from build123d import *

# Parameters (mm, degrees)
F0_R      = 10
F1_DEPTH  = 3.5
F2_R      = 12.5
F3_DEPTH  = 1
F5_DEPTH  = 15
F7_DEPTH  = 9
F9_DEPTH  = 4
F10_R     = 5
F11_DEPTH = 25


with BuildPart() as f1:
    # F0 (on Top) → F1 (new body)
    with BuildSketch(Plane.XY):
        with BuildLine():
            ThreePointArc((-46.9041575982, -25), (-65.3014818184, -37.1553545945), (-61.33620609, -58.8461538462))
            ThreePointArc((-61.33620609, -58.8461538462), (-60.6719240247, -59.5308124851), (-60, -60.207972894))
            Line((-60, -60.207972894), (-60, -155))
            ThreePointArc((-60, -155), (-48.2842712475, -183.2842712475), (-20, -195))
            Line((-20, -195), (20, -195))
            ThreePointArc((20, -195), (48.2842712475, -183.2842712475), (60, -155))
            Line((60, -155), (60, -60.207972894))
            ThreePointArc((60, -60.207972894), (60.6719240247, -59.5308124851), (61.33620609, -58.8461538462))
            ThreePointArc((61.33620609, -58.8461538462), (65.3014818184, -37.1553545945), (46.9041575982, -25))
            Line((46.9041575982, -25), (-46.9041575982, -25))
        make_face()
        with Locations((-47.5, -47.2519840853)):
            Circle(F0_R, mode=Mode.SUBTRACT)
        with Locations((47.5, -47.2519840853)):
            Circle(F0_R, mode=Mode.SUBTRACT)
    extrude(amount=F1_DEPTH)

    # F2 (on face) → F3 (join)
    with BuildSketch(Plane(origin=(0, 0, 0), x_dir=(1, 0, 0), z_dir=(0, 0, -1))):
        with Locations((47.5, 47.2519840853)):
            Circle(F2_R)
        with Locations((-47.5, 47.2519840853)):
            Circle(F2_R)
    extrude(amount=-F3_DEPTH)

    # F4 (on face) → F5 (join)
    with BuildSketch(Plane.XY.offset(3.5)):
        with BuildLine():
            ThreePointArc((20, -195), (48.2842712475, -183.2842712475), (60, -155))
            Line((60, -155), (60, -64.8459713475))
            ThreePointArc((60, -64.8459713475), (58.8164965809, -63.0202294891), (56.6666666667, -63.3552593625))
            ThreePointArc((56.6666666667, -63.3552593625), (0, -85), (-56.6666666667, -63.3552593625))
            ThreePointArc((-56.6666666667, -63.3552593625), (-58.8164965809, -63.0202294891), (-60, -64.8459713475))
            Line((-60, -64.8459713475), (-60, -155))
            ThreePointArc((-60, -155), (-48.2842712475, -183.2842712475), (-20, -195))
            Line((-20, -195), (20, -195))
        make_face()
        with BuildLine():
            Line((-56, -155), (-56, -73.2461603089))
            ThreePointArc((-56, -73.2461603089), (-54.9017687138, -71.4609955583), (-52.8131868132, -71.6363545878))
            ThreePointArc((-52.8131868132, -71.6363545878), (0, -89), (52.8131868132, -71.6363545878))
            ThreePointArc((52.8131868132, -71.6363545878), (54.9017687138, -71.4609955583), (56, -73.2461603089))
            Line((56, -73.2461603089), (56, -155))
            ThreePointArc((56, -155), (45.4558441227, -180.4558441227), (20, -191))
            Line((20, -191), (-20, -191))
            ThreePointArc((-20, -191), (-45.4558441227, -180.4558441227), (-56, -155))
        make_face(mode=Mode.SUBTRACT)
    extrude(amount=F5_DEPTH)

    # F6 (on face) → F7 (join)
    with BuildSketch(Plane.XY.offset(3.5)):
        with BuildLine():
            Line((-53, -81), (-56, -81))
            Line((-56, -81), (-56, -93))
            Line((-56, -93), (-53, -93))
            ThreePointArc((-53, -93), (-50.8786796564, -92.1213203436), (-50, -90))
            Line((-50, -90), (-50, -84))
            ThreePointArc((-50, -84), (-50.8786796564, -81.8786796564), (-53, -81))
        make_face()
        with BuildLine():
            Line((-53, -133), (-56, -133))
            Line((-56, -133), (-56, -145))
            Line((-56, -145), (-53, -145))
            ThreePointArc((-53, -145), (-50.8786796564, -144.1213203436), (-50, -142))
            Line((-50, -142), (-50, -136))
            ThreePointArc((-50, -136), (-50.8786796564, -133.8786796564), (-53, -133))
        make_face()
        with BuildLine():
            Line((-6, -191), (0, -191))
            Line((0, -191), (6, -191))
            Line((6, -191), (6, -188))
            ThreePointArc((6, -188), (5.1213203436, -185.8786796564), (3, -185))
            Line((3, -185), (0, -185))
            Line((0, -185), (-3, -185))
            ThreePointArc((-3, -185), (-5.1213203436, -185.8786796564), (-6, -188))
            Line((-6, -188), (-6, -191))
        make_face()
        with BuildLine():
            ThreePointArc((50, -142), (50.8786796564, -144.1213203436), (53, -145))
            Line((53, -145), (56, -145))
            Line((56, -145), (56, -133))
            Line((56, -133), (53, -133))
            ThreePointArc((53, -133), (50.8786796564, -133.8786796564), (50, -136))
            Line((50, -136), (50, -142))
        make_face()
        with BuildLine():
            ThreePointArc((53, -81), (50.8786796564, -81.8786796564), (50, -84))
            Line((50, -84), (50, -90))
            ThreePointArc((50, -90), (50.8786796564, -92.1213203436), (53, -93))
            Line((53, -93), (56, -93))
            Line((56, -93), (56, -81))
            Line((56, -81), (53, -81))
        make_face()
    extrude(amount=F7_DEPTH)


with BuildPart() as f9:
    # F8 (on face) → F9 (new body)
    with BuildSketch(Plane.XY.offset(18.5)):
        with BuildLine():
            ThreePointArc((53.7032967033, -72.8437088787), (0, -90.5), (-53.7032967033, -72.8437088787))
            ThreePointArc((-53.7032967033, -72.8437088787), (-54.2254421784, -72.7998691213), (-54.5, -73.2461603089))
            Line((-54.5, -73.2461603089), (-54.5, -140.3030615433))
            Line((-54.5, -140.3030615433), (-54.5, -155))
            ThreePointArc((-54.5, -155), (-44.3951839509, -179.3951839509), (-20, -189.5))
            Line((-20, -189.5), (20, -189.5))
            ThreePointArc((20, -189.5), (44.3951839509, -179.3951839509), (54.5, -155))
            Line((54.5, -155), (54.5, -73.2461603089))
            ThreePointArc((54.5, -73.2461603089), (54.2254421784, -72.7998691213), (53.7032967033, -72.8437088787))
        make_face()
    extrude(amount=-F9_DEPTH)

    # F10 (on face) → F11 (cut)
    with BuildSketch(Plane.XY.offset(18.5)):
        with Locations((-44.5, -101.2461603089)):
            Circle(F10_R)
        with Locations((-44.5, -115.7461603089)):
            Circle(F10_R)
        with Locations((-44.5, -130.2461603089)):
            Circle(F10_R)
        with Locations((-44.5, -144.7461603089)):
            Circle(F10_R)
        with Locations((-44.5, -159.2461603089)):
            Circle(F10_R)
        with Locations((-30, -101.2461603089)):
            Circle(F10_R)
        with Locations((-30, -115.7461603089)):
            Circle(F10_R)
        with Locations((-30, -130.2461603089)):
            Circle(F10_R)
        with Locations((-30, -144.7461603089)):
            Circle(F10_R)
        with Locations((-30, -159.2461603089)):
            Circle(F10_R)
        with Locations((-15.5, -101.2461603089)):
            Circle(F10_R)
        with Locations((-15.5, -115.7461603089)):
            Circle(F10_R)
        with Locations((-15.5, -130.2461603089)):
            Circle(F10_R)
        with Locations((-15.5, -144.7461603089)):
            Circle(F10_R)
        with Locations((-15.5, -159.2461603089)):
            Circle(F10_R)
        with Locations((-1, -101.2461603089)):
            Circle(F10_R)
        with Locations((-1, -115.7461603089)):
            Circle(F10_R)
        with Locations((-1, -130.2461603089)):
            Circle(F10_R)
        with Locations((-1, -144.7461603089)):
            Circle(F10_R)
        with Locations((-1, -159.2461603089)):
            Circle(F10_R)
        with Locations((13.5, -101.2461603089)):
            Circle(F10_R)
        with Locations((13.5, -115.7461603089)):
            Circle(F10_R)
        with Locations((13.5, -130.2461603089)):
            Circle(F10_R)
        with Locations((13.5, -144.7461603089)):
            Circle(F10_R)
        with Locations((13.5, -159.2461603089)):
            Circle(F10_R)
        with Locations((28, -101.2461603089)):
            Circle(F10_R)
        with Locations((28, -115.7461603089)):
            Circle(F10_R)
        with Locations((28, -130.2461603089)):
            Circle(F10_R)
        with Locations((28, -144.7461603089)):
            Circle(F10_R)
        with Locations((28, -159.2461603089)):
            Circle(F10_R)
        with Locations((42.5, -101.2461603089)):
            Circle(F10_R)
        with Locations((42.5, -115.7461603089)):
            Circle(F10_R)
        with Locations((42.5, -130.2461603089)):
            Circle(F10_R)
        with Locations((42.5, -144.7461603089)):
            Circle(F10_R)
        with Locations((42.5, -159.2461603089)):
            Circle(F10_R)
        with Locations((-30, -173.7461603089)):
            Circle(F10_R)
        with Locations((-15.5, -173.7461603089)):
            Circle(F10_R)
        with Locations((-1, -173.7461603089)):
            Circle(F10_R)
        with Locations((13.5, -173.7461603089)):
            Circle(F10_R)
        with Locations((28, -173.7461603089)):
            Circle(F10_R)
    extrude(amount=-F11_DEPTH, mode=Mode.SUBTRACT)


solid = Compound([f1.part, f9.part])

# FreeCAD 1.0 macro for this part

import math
import FreeCAD as App
import Part
import Sketcher

V = App.Vector
Q = App.Units.Quantity

doc = App.newDocument("Part")
body = doc.addObject("PartDesign::Body", "Body")

sketch1 = doc.addObject("Sketcher::SketchObject", "Sketch")
body.addObject(sketch1)
sketch1.AttachmentSupport = (doc.XY_Plane, [""])
sketch1.MapMode = "FlatFace"
sketch1.addGeometry([
    Part.ArcOfCircle(Part.Circle(V(-46.9, -45, 0), V(0, 0, 1), 20), math.radians(90), math.radians(224)),
    Part.ArcOfCircle(Part.Circle(V(0, 0, 0), V(0, 0, 1), 85), math.radians(-136.19), math.radians(-134.9)),
    Part.LineSegment(V(-60, -60.2, 0), V(-60, -155, 0)),
    Part.ArcOfCircle(Part.Circle(V(-20, -155, 0), V(0, 0, 1), 40), math.radians(180), math.radians(270)),
    Part.LineSegment(V(-20, -195, 0), V(20, -195, 0)),
    Part.ArcOfCircle(Part.Circle(V(20, -155, 0), V(0, 0, 1), 40), math.radians(-90), math.radians(0)),
    Part.LineSegment(V(60, -155, 0), V(60, -60.2, 0)),
    Part.ArcOfCircle(Part.Circle(V(0, 0, 0), V(0, 0, 1), 85), math.radians(-45.1), math.radians(-43.81)),
    Part.ArcOfCircle(Part.Circle(V(46.9, -45, 0), V(0, 0, 1), 20), math.radians(-44), math.radians(90)),
    Part.LineSegment(V(46.9, -25, 0), V(-46.9, -25, 0)),
    Part.Circle(V(-47.5, -47.3, 0), V(0, 0, 1), 10),
    Part.Circle(V(47.5, -47.3, 0), V(0, 0, 1), 10),
], False)
sketch1.addConstraint([
    Sketcher.Constraint("Tangent", 0, 2, 1, 1),
    Sketcher.Constraint("Coincident", 1, 2, 2, 1),
    Sketcher.Constraint("Tangent", 2, 2, 3, 1),
    Sketcher.Constraint("Tangent", 3, 2, 4, 1),
    Sketcher.Constraint("Tangent", 4, 2, 5, 1),
    Sketcher.Constraint("Tangent", 5, 2, 6, 1),
    Sketcher.Constraint("Coincident", 6, 2, 7, 1),
    Sketcher.Constraint("Tangent", 7, 2, 8, 1),
    Sketcher.Constraint("Tangent", 8, 2, 9, 1),
    Sketcher.Constraint("Tangent", 9, 2, 0, 1),
    Sketcher.Constraint("Vertical", 2),
    Sketcher.Constraint("Horizontal", 4),
    Sketcher.Constraint("Vertical", 6),
    Sketcher.Constraint("Horizontal", 9),
    Sketcher.Constraint("Coincident", 1, 3, -1, 1),
    Sketcher.Constraint("Coincident", 7, 3, -1, 1),
    Sketcher.Constraint("Equal", 3, 5),
    Sketcher.Constraint("Equal", 1, 7),
    Sketcher.Constraint("Equal", 0, 8),
    Sketcher.Constraint("Equal", 10, 11),
    Sketcher.Constraint("Symmetric", 10, 3, 11, 3, -2),
    Sketcher.Constraint("Horizontal", 1, 2, 6, 2),
    Sketcher.Constraint("Diameter", 10, Q("20 mm")),
    Sketcher.Constraint("Radius", 0, Q("20 mm")),
    Sketcher.Constraint("Radius", 1, Q("85.000001 mm")),
    Sketcher.Constraint("Radius", 3, Q("40 mm")),
    Sketcher.Constraint("DistanceX", 4, 1, 4, 2, Q("40 mm")),
    Sketcher.Constraint("DistanceY", 0, 3, -1, 1, Q("45 mm")),
    Sketcher.Constraint("DistanceY", 3, 3, -1, 1, Q("155 mm")),
    Sketcher.Constraint("DistanceX", 10, 3, 11, 3, Q("95 mm")),
    Sketcher.Constraint("DistanceY", 0, 2, 10, 3, Q("11.59417 mm")),
])
pad1 = doc.addObject("PartDesign::Pad", "Pad")
body.addObject(pad1)
pad1.Profile = sketch1
pad1.Length = 3.5

sketch2 = doc.addObject("Sketcher::SketchObject", "Sketch001")
body.addObject(sketch2)
sketch2.AttachmentSupport = (doc.XY_Plane, [""])
sketch2.MapMode = "FlatFace"
sketch2.addGeometry([
    Part.Circle(V(48, -47, 0), V(0, 0, 1), 12),
    Part.Circle(V(-48, -47, 0), V(0, 0, 1), 12),
], False)
sketch2.addConstraint([
    Sketcher.Constraint("Equal", 0, 1),
    Sketcher.Constraint("Symmetric", 0, 3, 1, 3, -2),
    Sketcher.Constraint("Diameter", 0, Q("25 mm")),
    Sketcher.Constraint("DistanceX", 1, 3, 0, 3, Q("95 mm")),
    Sketcher.Constraint("DistanceY", 0, 3, -1, 1, Q("47.251984 mm")),
])
pad2 = doc.addObject("PartDesign::Pad", "Pad001")
body.addObject(pad2)
pad2.Profile = sketch2
pad2.Length = 1

sketch3 = doc.addObject("Sketcher::SketchObject", "Sketch002")
body.addObject(sketch3)
sketch3.AttachmentSupport = (doc.XY_Plane, [""])
sketch3.MapMode = "FlatFace"
sketch3.AttachmentOffset = App.Placement(V(0, 0, 3.5), App.Rotation())
sketch3.addGeometry([
    Part.ArcOfCircle(Part.Circle(V(20, -155, 0), V(0, 0, 1), 40), math.radians(-90), math.radians(0)),
    Part.LineSegment(V(60, -155, 0), V(60, -64.8, 0)),
    Part.ArcOfCircle(Part.Circle(V(58, -64.8, 0), V(0, 0, 1), 2), math.radians(0), math.radians(132)),
    Part.ArcOfCircle(Part.Circle(V(0, 0, 0), V(0, 0, 1), 85), math.radians(-132), math.radians(-48)),
    Part.ArcOfCircle(Part.Circle(V(-58, -64.8, 0), V(0, 0, 1), 2), math.radians(48), math.radians(180)),
    Part.LineSegment(V(-60, -64.8, 0), V(-60, -155, 0)),
    Part.ArcOfCircle(Part.Circle(V(-20, -155, 0), V(0, 0, 1), 40), math.radians(180), math.radians(270)),
    Part.LineSegment(V(-20, -195, 0), V(20, -195, 0)),
    Part.ArcOfCircle(Part.Circle(V(-20, -155, 0), V(0, 0, 1), 36), math.radians(180), math.radians(270)),
    Part.LineSegment(V(-56, -155, 0), V(-56, -73.2, 0)),
    Part.ArcOfCircle(Part.Circle(V(-54, -73.2, 0), V(0, 0, 1), 2), math.radians(54), math.radians(180)),
    Part.ArcOfCircle(Part.Circle(V(0, 0, 0), V(0, 0, 1), 89), math.radians(-126), math.radians(-54)),
    Part.ArcOfCircle(Part.Circle(V(54, -73.2, 0), V(0, 0, 1), 2), math.radians(0), math.radians(126)),
    Part.LineSegment(V(56, -73.2, 0), V(56, -155, 0)),
    Part.ArcOfCircle(Part.Circle(V(20, -155, 0), V(0, 0, 1), 36), math.radians(-90), math.radians(0)),
    Part.LineSegment(V(20, -191, 0), V(-20, -191, 0)),
], False)
sketch3.addConstraint([
    Sketcher.Constraint("Tangent", 0, 2, 1, 1),
    Sketcher.Constraint("Tangent", 1, 2, 2, 1),
    Sketcher.Constraint("Tangent", 2, 2, 3, 2),
    Sketcher.Constraint("Tangent", 3, 1, 4, 1),
    Sketcher.Constraint("Tangent", 4, 2, 5, 1),
    Sketcher.Constraint("Tangent", 5, 2, 6, 1),
    Sketcher.Constraint("Tangent", 6, 2, 7, 1),
    Sketcher.Constraint("Tangent", 7, 2, 0, 1),
    Sketcher.Constraint("Tangent", 8, 1, 9, 1),
    Sketcher.Constraint("Tangent", 9, 2, 10, 2),
    Sketcher.Constraint("Tangent", 10, 1, 11, 1),
    Sketcher.Constraint("Tangent", 11, 2, 12, 2),
    Sketcher.Constraint("Tangent", 12, 1, 13, 1),
    Sketcher.Constraint("Tangent", 13, 2, 14, 2),
    Sketcher.Constraint("Tangent", 14, 1, 15, 1),
    Sketcher.Constraint("Tangent", 15, 2, 8, 2),
    Sketcher.Constraint("Vertical", 1),
    Sketcher.Constraint("Vertical", 5),
    Sketcher.Constraint("Horizontal", 7),
    Sketcher.Constraint("Vertical", 9),
    Sketcher.Constraint("Vertical", 13),
    Sketcher.Constraint("Horizontal", 15),
    Sketcher.Constraint("Coincident", 3, 3, -1, 1),
    Sketcher.Constraint("Coincident", 11, 3, -1, 1),
    Sketcher.Constraint("Coincident", 8, 3, 6, 3),
    Sketcher.Constraint("Coincident", 14, 3, 0, 3),
    Sketcher.Constraint("Equal", 2, 4),
    Sketcher.Constraint("Equal", 0, 6),
    Sketcher.Constraint("Equal", 4, 10),
    Sketcher.Constraint("Equal", 10, 12),
    Sketcher.Constraint("Horizontal", 2, 3, 4, 3),
    Sketcher.Constraint("Radius", 0, Q("40 mm")),
    Sketcher.Constraint("Radius", 2, Q("2 mm")),
    Sketcher.Constraint("Radius", 3, Q("85 mm")),
    Sketcher.Constraint("Radius", 8, Q("36 mm")),
    Sketcher.Constraint("Radius", 11, Q("89 mm")),
    Sketcher.Constraint("DistanceX", 7, 1, 7, 2, Q("40 mm")),
    Sketcher.Constraint("DistanceY", 0, 3, -1, 1, Q("155 mm")),
])
pad3 = doc.addObject("PartDesign::Pad", "Pad002")
body.addObject(pad3)
pad3.Profile = sketch3
pad3.Length = 15

sketch4 = doc.addObject("Sketcher::SketchObject", "Sketch003")
body.addObject(sketch4)
sketch4.AttachmentSupport = (doc.XY_Plane, [""])
sketch4.MapMode = "FlatFace"
sketch4.AttachmentOffset = App.Placement(V(0, 0, 3.5), App.Rotation())
sketch4.addGeometry([
    Part.LineSegment(V(-53, -81, 0), V(-56, -81, 0)),
    Part.LineSegment(V(-56, -81, 0), V(-56, -93, 0)),
    Part.LineSegment(V(-56, -93, 0), V(-53, -93, 0)),
    Part.ArcOfCircle(Part.Circle(V(-53, -90, 0), V(0, 0, 1), 3), math.radians(-90), math.radians(0)),
    Part.LineSegment(V(-50, -90, 0), V(-50, -84, 0)),
    Part.ArcOfCircle(Part.Circle(V(-53, -84, 0), V(0, 0, 1), 3), math.radians(0), math.radians(90)),
    Part.LineSegment(V(-53, -133, 0), V(-56, -133, 0)),
    Part.LineSegment(V(-56, -133, 0), V(-56, -145, 0)),
    Part.LineSegment(V(-56, -145, 0), V(-53, -145, 0)),
    Part.ArcOfCircle(Part.Circle(V(-53, -142, 0), V(0, 0, 1), 3), math.radians(-90), math.radians(0)),
    Part.LineSegment(V(-50, -142, 0), V(-50, -136, 0)),
    Part.ArcOfCircle(Part.Circle(V(-53, -136, 0), V(0, 0, 1), 3), math.radians(0), math.radians(90)),
    Part.LineSegment(V(-6, -191, 0), V(6, -191, 0)),
    Part.LineSegment(V(6, -191, 0), V(6, -188, 0)),
    Part.ArcOfCircle(Part.Circle(V(3, -188, 0), V(0, 0, 1), 3), math.radians(0), math.radians(90)),
    Part.LineSegment(V(3, -185, 0), V(-3, -185, 0)),
    Part.ArcOfCircle(Part.Circle(V(-3, -188, 0), V(0, 0, 1), 3), math.radians(90), math.radians(180)),
    Part.LineSegment(V(-6, -188, 0), V(-6, -191, 0)),
    Part.ArcOfCircle(Part.Circle(V(53, -142, 0), V(0, 0, 1), 3), math.radians(180), math.radians(270)),
    Part.LineSegment(V(53, -145, 0), V(56, -145, 0)),
    Part.LineSegment(V(56, -145, 0), V(56, -133, 0)),
    Part.LineSegment(V(56, -133, 0), V(53, -133, 0)),
    Part.ArcOfCircle(Part.Circle(V(53, -136, 0), V(0, 0, 1), 3), math.radians(90), math.radians(180)),
    Part.LineSegment(V(50, -136, 0), V(50, -142, 0)),
    Part.ArcOfCircle(Part.Circle(V(53, -84, 0), V(0, 0, 1), 3), math.radians(90), math.radians(180)),
    Part.LineSegment(V(50, -84, 0), V(50, -90, 0)),
    Part.ArcOfCircle(Part.Circle(V(53, -90, 0), V(0, 0, 1), 3), math.radians(180), math.radians(270)),
    Part.LineSegment(V(53, -93, 0), V(56, -93, 0)),
    Part.LineSegment(V(56, -93, 0), V(56, -81, 0)),
    Part.LineSegment(V(56, -81, 0), V(53, -81, 0)),
], False)
sketch4.addConstraint([
    Sketcher.Constraint("Coincident", 0, 2, 1, 1),
    Sketcher.Constraint("Coincident", 1, 2, 2, 1),
    Sketcher.Constraint("Tangent", 2, 2, 3, 1),
    Sketcher.Constraint("Tangent", 3, 2, 4, 1),
    Sketcher.Constraint("Tangent", 4, 2, 5, 1),
    Sketcher.Constraint("Tangent", 5, 2, 0, 1),
    Sketcher.Constraint("Coincident", 6, 2, 7, 1),
    Sketcher.Constraint("Coincident", 7, 2, 8, 1),
    Sketcher.Constraint("Tangent", 8, 2, 9, 1),
    Sketcher.Constraint("Tangent", 9, 2, 10, 1),
    Sketcher.Constraint("Tangent", 10, 2, 11, 1),
    Sketcher.Constraint("Tangent", 11, 2, 6, 1),
    Sketcher.Constraint("Coincident", 12, 2, 13, 1),
    Sketcher.Constraint("Tangent", 13, 2, 14, 1),
    Sketcher.Constraint("Tangent", 14, 2, 15, 1),
    Sketcher.Constraint("Tangent", 15, 2, 16, 1),
    Sketcher.Constraint("Tangent", 16, 2, 17, 1),
    Sketcher.Constraint("Coincident", 17, 2, 12, 1),
    Sketcher.Constraint("Tangent", 18, 2, 19, 1),
    Sketcher.Constraint("Coincident", 19, 2, 20, 1),
    Sketcher.Constraint("Coincident", 20, 2, 21, 1),
    Sketcher.Constraint("Tangent", 21, 2, 22, 1),
    Sketcher.Constraint("Tangent", 22, 2, 23, 1),
    Sketcher.Constraint("Tangent", 23, 2, 18, 1),
    Sketcher.Constraint("Tangent", 24, 2, 25, 1),
    Sketcher.Constraint("Tangent", 25, 2, 26, 1),
    Sketcher.Constraint("Tangent", 26, 2, 27, 1),
    Sketcher.Constraint("Coincident", 27, 2, 28, 1),
    Sketcher.Constraint("Coincident", 28, 2, 29, 1),
    Sketcher.Constraint("Tangent", 29, 2, 24, 1),
    Sketcher.Constraint("Horizontal", 0),
    Sketcher.Constraint("Vertical", 1),
    Sketcher.Constraint("Horizontal", 2),
    Sketcher.Constraint("Vertical", 4),
    Sketcher.Constraint("Horizontal", 6),
    Sketcher.Constraint("Vertical", 7),
    Sketcher.Constraint("Horizontal", 8),
    Sketcher.Constraint("Vertical", 10),
    Sketcher.Constraint("Horizontal", 12),
    Sketcher.Constraint("Vertical", 13),
    Sketcher.Constraint("Horizontal", 15),
    Sketcher.Constraint("Vertical", 17),
    Sketcher.Constraint("Horizontal", 19),
    Sketcher.Constraint("Vertical", 20),
    Sketcher.Constraint("Horizontal", 21),
    Sketcher.Constraint("Vertical", 23),
    Sketcher.Constraint("Vertical", 25),
    Sketcher.Constraint("Horizontal", 27),
    Sketcher.Constraint("Vertical", 28),
    Sketcher.Constraint("Horizontal", 29),
    Sketcher.Constraint("Equal", 3, 5),
    Sketcher.Constraint("Equal", 5, 9),
    Sketcher.Constraint("Equal", 9, 11),
    Sketcher.Constraint("Equal", 11, 14),
    Sketcher.Constraint("Equal", 14, 16),
    Sketcher.Constraint("Equal", 16, 18),
    Sketcher.Constraint("Equal", 18, 22),
    Sketcher.Constraint("Equal", 22, 24),
    Sketcher.Constraint("Equal", 24, 26),
    Sketcher.Constraint("Symmetric", 9, 3, 18, 3, -2),
    Sketcher.Constraint("Symmetric", 5, 3, 24, 3, -2),
    Sketcher.Constraint("Symmetric", 6, 2, 20, 2, -2),
    Sketcher.Constraint("Symmetric", 1, 2, 27, 2, -2),
    Sketcher.Constraint("Vertical", 5, 3, 9, 3),
    Sketcher.Constraint("Vertical", 1, 2, 6, 2),
    Sketcher.Constraint("Equal", 12, 1),
    Sketcher.Constraint("Equal", 1, 7),
    Sketcher.Constraint("Equal", 29, 13),
    Sketcher.Constraint("Radius", 3, Q("3 mm")),
    Sketcher.Constraint("DistanceX", 0, 2, 0, 1, Q("3 mm")),
    Sketcher.Constraint("DistanceX", 12, 1, 12, 2, Q("12 mm")),
    Sketcher.Constraint("DistanceX", 3, 3, -1, 1, Q("53 mm")),
    Sketcher.Constraint("DistanceY", 3, 3, -1, 1, Q("90 mm")),
    Sketcher.Constraint("DistanceY", 9, 3, -1, 1, Q("142 mm")),
    Sketcher.Constraint("DistanceX", -1, 1, 14, 3, Q("3 mm")),
    Sketcher.Constraint("DistanceY", 14, 3, -1, 1, Q("188 mm")),
])
pad4 = doc.addObject("PartDesign::Pad", "Pad003")
body.addObject(pad4)
pad4.Profile = sketch4
pad4.Length = 9
body2 = doc.addObject("PartDesign::Body", "Body001")

sketch5 = doc.addObject("Sketcher::SketchObject", "Sketch004")
body2.addObject(sketch5)
sketch5.AttachmentSupport = (doc.getObject("XY_Plane001"), [""])
sketch5.MapMode = "FlatFace"
sketch5.AttachmentOffset = App.Placement(V(0, 0, 18.5), App.Rotation())
sketch5.addGeometry([
    Part.ArcOfCircle(Part.Circle(V(0, 0, 0), V(0, 0, 1), 90.5), math.radians(-126), math.radians(-54)),
    Part.ArcOfCircle(Part.Circle(V(-54, -73.2, 0), V(0, 0, 1), 0.5), math.radians(54), math.radians(180)),
    Part.LineSegment(V(-54.5, -73.2, 0), V(-54.5, -155, 0)),
    Part.ArcOfCircle(Part.Circle(V(-20, -155, 0), V(0, 0, 1), 34.5), math.radians(180), math.radians(270)),
    Part.LineSegment(V(-20, -189.5, 0), V(20, -189.5, 0)),
    Part.ArcOfCircle(Part.Circle(V(20, -155, 0), V(0, 0, 1), 34.5), math.radians(-90), math.radians(0)),
    Part.LineSegment(V(54.5, -155, 0), V(54.5, -73.2, 0)),
    Part.ArcOfCircle(Part.Circle(V(54, -73.2, 0), V(0, 0, 1), 0.5), math.radians(0), math.radians(126)),
], False)
sketch5.addConstraint([
    Sketcher.Constraint("Tangent", 0, 1, 1, 1),
    Sketcher.Constraint("Tangent", 1, 2, 2, 1),
    Sketcher.Constraint("Tangent", 2, 2, 3, 1),
    Sketcher.Constraint("Tangent", 3, 2, 4, 1),
    Sketcher.Constraint("Tangent", 4, 2, 5, 1),
    Sketcher.Constraint("Tangent", 5, 2, 6, 1),
    Sketcher.Constraint("Tangent", 6, 2, 7, 1),
    Sketcher.Constraint("Tangent", 7, 2, 0, 2),
    Sketcher.Constraint("Vertical", 2),
    Sketcher.Constraint("Horizontal", 4),
    Sketcher.Constraint("Vertical", 6),
    Sketcher.Constraint("Coincident", 0, 3, -1, 1),
    Sketcher.Constraint("Equal", 3, 5),
    Sketcher.Constraint("Equal", 1, 7),
    Sketcher.Constraint("Horizontal", 1, 3, 7, 3),
    Sketcher.Constraint("Radius", 0, Q("90.5 mm")),
    Sketcher.Constraint("Radius", 1, Q("0.5 mm")),
    Sketcher.Constraint("Radius", 3, Q("34.5 mm")),
    Sketcher.Constraint("DistanceX", 4, 1, 4, 2, Q("40 mm")),
    Sketcher.Constraint("DistanceY", 3, 3, -1, 1, Q("155 mm")),
])
pad5 = doc.addObject("PartDesign::Pad", "Pad004")
body2.addObject(pad5)
pad5.Profile = sketch5
pad5.Length = 4
pad5.Reversed = True

sketch6 = doc.addObject("Sketcher::SketchObject", "Sketch005")
body2.addObject(sketch6)
sketch6.AttachmentSupport = (doc.getObject("XY_Plane001"), [""])
sketch6.MapMode = "FlatFace"
sketch6.AttachmentOffset = App.Placement(V(0, 0, 18.5), App.Rotation())
sketch6.addGeometry([
    Part.Circle(V(-44, -101, 0), V(0, 0, 1), 5),
    Part.Circle(V(-44, -116, 0), V(0, 0, 1), 5),
    Part.Circle(V(-44, -130, 0), V(0, 0, 1), 5),
    Part.Circle(V(-44, -145, 0), V(0, 0, 1), 5),
    Part.Circle(V(-44, -159, 0), V(0, 0, 1), 5),
    Part.Circle(V(-30, -101, 0), V(0, 0, 1), 5),
    Part.Circle(V(-30, -116, 0), V(0, 0, 1), 5),
    Part.Circle(V(-30, -130, 0), V(0, 0, 1), 5),
    Part.Circle(V(-30, -145, 0), V(0, 0, 1), 5),
    Part.Circle(V(-30, -159, 0), V(0, 0, 1), 5),
    Part.Circle(V(-16, -101, 0), V(0, 0, 1), 5),
    Part.Circle(V(-16, -116, 0), V(0, 0, 1), 5),
    Part.Circle(V(-16, -130, 0), V(0, 0, 1), 5),
    Part.Circle(V(-16, -145, 0), V(0, 0, 1), 5),
    Part.Circle(V(-16, -159, 0), V(0, 0, 1), 5),
    Part.Circle(V(-1, -101, 0), V(0, 0, 1), 5),
    Part.Circle(V(-1, -116, 0), V(0, 0, 1), 5),
    Part.Circle(V(-1, -130, 0), V(0, 0, 1), 5),
    Part.Circle(V(-1, -145, 0), V(0, 0, 1), 5),
    Part.Circle(V(-1, -159, 0), V(0, 0, 1), 5),
    Part.Circle(V(14, -101, 0), V(0, 0, 1), 5),
    Part.Circle(V(14, -116, 0), V(0, 0, 1), 5),
    Part.Circle(V(14, -130, 0), V(0, 0, 1), 5),
    Part.Circle(V(14, -145, 0), V(0, 0, 1), 5),
    Part.Circle(V(14, -159, 0), V(0, 0, 1), 5),
    Part.Circle(V(28, -101, 0), V(0, 0, 1), 5),
    Part.Circle(V(28, -116, 0), V(0, 0, 1), 5),
    Part.Circle(V(28, -130, 0), V(0, 0, 1), 5),
    Part.Circle(V(28, -145, 0), V(0, 0, 1), 5),
    Part.Circle(V(28, -159, 0), V(0, 0, 1), 5),
    Part.Circle(V(42, -101, 0), V(0, 0, 1), 5),
    Part.Circle(V(42, -116, 0), V(0, 0, 1), 5),
    Part.Circle(V(42, -130, 0), V(0, 0, 1), 5),
    Part.Circle(V(42, -145, 0), V(0, 0, 1), 5),
    Part.Circle(V(42, -159, 0), V(0, 0, 1), 5),
    Part.Circle(V(-30, -174, 0), V(0, 0, 1), 5),
    Part.Circle(V(-16, -174, 0), V(0, 0, 1), 5),
    Part.Circle(V(-1, -174, 0), V(0, 0, 1), 5),
    Part.Circle(V(14, -174, 0), V(0, 0, 1), 5),
    Part.Circle(V(28, -174, 0), V(0, 0, 1), 5),
], False)
sketch6.addConstraint([
    Sketcher.Constraint("Equal", 0, 1),
    Sketcher.Constraint("Equal", 1, 2),
    Sketcher.Constraint("Equal", 2, 3),
    Sketcher.Constraint("Equal", 3, 4),
    Sketcher.Constraint("Equal", 4, 5),
    Sketcher.Constraint("Equal", 5, 6),
    Sketcher.Constraint("Equal", 6, 7),
    Sketcher.Constraint("Equal", 7, 8),
    Sketcher.Constraint("Equal", 8, 9),
    Sketcher.Constraint("Equal", 9, 10),
    Sketcher.Constraint("Equal", 10, 11),
    Sketcher.Constraint("Equal", 11, 12),
    Sketcher.Constraint("Equal", 12, 13),
    Sketcher.Constraint("Equal", 13, 14),
    Sketcher.Constraint("Equal", 14, 15),
    Sketcher.Constraint("Equal", 15, 16),
    Sketcher.Constraint("Equal", 16, 17),
    Sketcher.Constraint("Equal", 17, 18),
    Sketcher.Constraint("Equal", 18, 19),
    Sketcher.Constraint("Equal", 19, 20),
    Sketcher.Constraint("Equal", 20, 21),
    Sketcher.Constraint("Equal", 21, 22),
    Sketcher.Constraint("Equal", 22, 23),
    Sketcher.Constraint("Equal", 23, 24),
    Sketcher.Constraint("Equal", 24, 25),
    Sketcher.Constraint("Equal", 25, 26),
    Sketcher.Constraint("Equal", 26, 27),
    Sketcher.Constraint("Equal", 27, 28),
    Sketcher.Constraint("Equal", 28, 29),
    Sketcher.Constraint("Equal", 29, 30),
    Sketcher.Constraint("Equal", 30, 31),
    Sketcher.Constraint("Equal", 31, 32),
    Sketcher.Constraint("Equal", 32, 33),
    Sketcher.Constraint("Equal", 33, 34),
    Sketcher.Constraint("Equal", 34, 35),
    Sketcher.Constraint("Equal", 35, 36),
    Sketcher.Constraint("Equal", 36, 37),
    Sketcher.Constraint("Equal", 37, 38),
    Sketcher.Constraint("Equal", 38, 39),
    Sketcher.Constraint("Horizontal", 0, 3, 5, 3),
    Sketcher.Constraint("Horizontal", 1, 3, 6, 3),
    Sketcher.Constraint("Horizontal", 2, 3, 7, 3),
    Sketcher.Constraint("Horizontal", 3, 3, 8, 3),
    Sketcher.Constraint("Horizontal", 4, 3, 9, 3),
    Sketcher.Constraint("Horizontal", 5, 3, 10, 3),
    Sketcher.Constraint("Horizontal", 6, 3, 11, 3),
    Sketcher.Constraint("Horizontal", 7, 3, 12, 3),
    Sketcher.Constraint("Horizontal", 8, 3, 13, 3),
    Sketcher.Constraint("Horizontal", 9, 3, 14, 3),
    Sketcher.Constraint("Horizontal", 10, 3, 15, 3),
    Sketcher.Constraint("Horizontal", 11, 3, 16, 3),
    Sketcher.Constraint("Horizontal", 12, 3, 17, 3),
    Sketcher.Constraint("Horizontal", 13, 3, 18, 3),
    Sketcher.Constraint("Horizontal", 14, 3, 19, 3),
    Sketcher.Constraint("Horizontal", 15, 3, 20, 3),
    Sketcher.Constraint("Horizontal", 16, 3, 21, 3),
    Sketcher.Constraint("Horizontal", 17, 3, 22, 3),
    Sketcher.Constraint("Horizontal", 18, 3, 23, 3),
    Sketcher.Constraint("Horizontal", 19, 3, 24, 3),
    Sketcher.Constraint("Horizontal", 20, 3, 25, 3),
    Sketcher.Constraint("Horizontal", 21, 3, 26, 3),
    Sketcher.Constraint("Horizontal", 22, 3, 27, 3),
    Sketcher.Constraint("Horizontal", 23, 3, 28, 3),
    Sketcher.Constraint("Horizontal", 24, 3, 29, 3),
    Sketcher.Constraint("Horizontal", 25, 3, 30, 3),
    Sketcher.Constraint("Horizontal", 26, 3, 31, 3),
    Sketcher.Constraint("Horizontal", 27, 3, 32, 3),
    Sketcher.Constraint("Horizontal", 28, 3, 33, 3),
    Sketcher.Constraint("Horizontal", 29, 3, 34, 3),
    Sketcher.Constraint("Horizontal", 35, 3, 36, 3),
    Sketcher.Constraint("Horizontal", 36, 3, 37, 3),
    Sketcher.Constraint("Horizontal", 37, 3, 38, 3),
    Sketcher.Constraint("Horizontal", 38, 3, 39, 3),
    Sketcher.Constraint("Vertical", 0, 3, 1, 3),
    Sketcher.Constraint("Vertical", 1, 3, 2, 3),
    Sketcher.Constraint("Vertical", 2, 3, 3, 3),
    Sketcher.Constraint("Vertical", 3, 3, 4, 3),
    Sketcher.Constraint("Vertical", 5, 3, 6, 3),
    Sketcher.Constraint("Vertical", 6, 3, 7, 3),
    Sketcher.Constraint("Vertical", 7, 3, 8, 3),
    Sketcher.Constraint("Vertical", 8, 3, 9, 3),
    Sketcher.Constraint("Vertical", 10, 3, 11, 3),
    Sketcher.Constraint("Vertical", 11, 3, 12, 3),
    Sketcher.Constraint("Vertical", 12, 3, 13, 3),
    Sketcher.Constraint("Vertical", 13, 3, 14, 3),
    Sketcher.Constraint("Vertical", 15, 3, 16, 3),
    Sketcher.Constraint("Vertical", 16, 3, 17, 3),
    Sketcher.Constraint("Vertical", 17, 3, 18, 3),
    Sketcher.Constraint("Vertical", 18, 3, 19, 3),
    Sketcher.Constraint("Vertical", 20, 3, 21, 3),
    Sketcher.Constraint("Vertical", 21, 3, 22, 3),
    Sketcher.Constraint("Vertical", 22, 3, 23, 3),
    Sketcher.Constraint("Vertical", 23, 3, 24, 3),
    Sketcher.Constraint("Vertical", 25, 3, 26, 3),
    Sketcher.Constraint("Vertical", 26, 3, 27, 3),
    Sketcher.Constraint("Vertical", 27, 3, 28, 3),
    Sketcher.Constraint("Vertical", 28, 3, 29, 3),
    Sketcher.Constraint("Vertical", 30, 3, 31, 3),
    Sketcher.Constraint("Vertical", 31, 3, 32, 3),
    Sketcher.Constraint("Vertical", 32, 3, 33, 3),
    Sketcher.Constraint("Vertical", 33, 3, 34, 3),
    Sketcher.Constraint("Vertical", 9, 3, 35, 3),
    Sketcher.Constraint("Vertical", 14, 3, 36, 3),
    Sketcher.Constraint("Vertical", 19, 3, 37, 3),
    Sketcher.Constraint("Vertical", 24, 3, 38, 3),
    Sketcher.Constraint("Vertical", 29, 3, 39, 3),
    Sketcher.Constraint("Diameter", 0, Q("10 mm")),
    Sketcher.Constraint("DistanceX", 5, 3, -1, 1, Q("30 mm")),
    Sketcher.Constraint("DistanceX", 15, 3, -1, 1, Q("1 mm")),
    Sketcher.Constraint("DistanceX", -1, 1, 25, 3, Q("28 mm")),
    Sketcher.Constraint("DistanceY", 2, 3, 0, 3, Q("29 mm")),
    Sketcher.Constraint("DistanceY", 3, 3, 1, 3, Q("29 mm")),
    Sketcher.Constraint("DistanceY", 4, 3, 2, 3, Q("29 mm")),
    Sketcher.Constraint("DistanceX", 0, 3, 10, 3, Q("29 mm")),
    Sketcher.Constraint("DistanceX", 10, 3, 20, 3, Q("29 mm")),
    Sketcher.Constraint("DistanceX", 20, 3, 30, 3, Q("29 mm")),
    Sketcher.Constraint("DistanceY", 35, 3, 8, 3, Q("29 mm")),
    Sketcher.Constraint("DistanceX", 0, 3, -1, 1, Q("44.5 mm")),
    Sketcher.Constraint("DistanceY", 1, 3, 0, 3, Q("14.5 mm")),
    Sketcher.Constraint("DistanceY", 0, 3, -1, 1, Q("101.24616 mm")),
])
pocket1 = doc.addObject("PartDesign::Pocket", "Pocket")
body2.addObject(pocket1)
pocket1.Profile = sketch6
pocket1.Length = 25

doc.recompute()
